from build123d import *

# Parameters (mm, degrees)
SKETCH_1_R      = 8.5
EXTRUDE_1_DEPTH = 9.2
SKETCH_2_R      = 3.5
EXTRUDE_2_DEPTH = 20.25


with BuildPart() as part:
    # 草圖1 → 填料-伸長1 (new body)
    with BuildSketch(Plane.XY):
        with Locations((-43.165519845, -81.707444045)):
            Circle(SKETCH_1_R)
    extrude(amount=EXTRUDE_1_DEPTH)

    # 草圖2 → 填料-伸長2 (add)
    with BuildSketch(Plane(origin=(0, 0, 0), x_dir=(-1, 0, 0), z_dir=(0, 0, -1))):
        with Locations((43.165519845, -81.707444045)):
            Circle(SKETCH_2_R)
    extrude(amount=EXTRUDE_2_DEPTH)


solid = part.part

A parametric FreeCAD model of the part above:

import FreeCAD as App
import Part
import Sketcher

doc = App.newDocument("Part")
params = doc.addObject("Spreadsheet::Sheet", "Params")
for row, (alias, value) in enumerate([
    ("sketch1_diameter", "17 mm"),
    ("pad1_length", "9.2 mm"),
    ("sketch2_diameter", "7 mm"),
    ("pad2_length", "20.25 mm"),
], start=1):
    params.set(f"A{row}", alias)
    params.set(f"B{row}", "=" + value)
    params.setAlias(f"B{row}", alias)

body = doc.addObject("PartDesign::Body", "Body")

sketch1 = body.newObject("Sketcher::SketchObject", "Sketch")
sketch1.AttachmentSupport = (doc.getObject("XY_Plane"), [""])
sketch1.MapMode = "FlatFace"
sketch1.addGeometry(Part.Circle(App.Vector(-43, -82, 0), App.Vector(0, 0, 1), 8), False)
sketch1.addConstraint([
    Sketcher.Constraint("Diameter", 0, 17.0),
    Sketcher.Constraint("DistanceX", 0, 3, -1, 1, 43.16552),
    Sketcher.Constraint("DistanceY", 0, 3, -1, 1, 81.707444),
])
sketch1.setExpression("Constraints[0]", "Params.sketch1_diameter")
pad1 = body.newObject("PartDesign::Pad", "Pad")
pad1.Profile = sketch1
pad1.setExpression("Length", "Params.pad1_length")

sketch2 = body.newObject("Sketcher::SketchObject", "Sketch001")
sketch2.AttachmentSupport = (doc.getObject("XY_Plane"), [""])
sketch2.MapMode = "FlatFace"
sketch2.addGeometry(Part.Circle(App.Vector(-43.2, -81.7, 0), App.Vector(0, 0, 1), 3.5), False)
sketch2.addConstraint([
    Sketcher.Constraint("Diameter", 0, 7.0),
    Sketcher.Constraint("DistanceX", 0, 3, -1, 1, 43.16552),
    Sketcher.Constraint("DistanceY", 0, 3, -1, 1, 81.707444),
])
sketch2.setExpression("Constraints[0]", "Params.sketch2_diameter")
pad2 = body.newObject("PartDesign::Pad", "Pad001")
pad2.Profile = sketch2
pad2.setExpression("Length", "Params.pad2_length")
pad2.Reversed = True

doc.recompute()
